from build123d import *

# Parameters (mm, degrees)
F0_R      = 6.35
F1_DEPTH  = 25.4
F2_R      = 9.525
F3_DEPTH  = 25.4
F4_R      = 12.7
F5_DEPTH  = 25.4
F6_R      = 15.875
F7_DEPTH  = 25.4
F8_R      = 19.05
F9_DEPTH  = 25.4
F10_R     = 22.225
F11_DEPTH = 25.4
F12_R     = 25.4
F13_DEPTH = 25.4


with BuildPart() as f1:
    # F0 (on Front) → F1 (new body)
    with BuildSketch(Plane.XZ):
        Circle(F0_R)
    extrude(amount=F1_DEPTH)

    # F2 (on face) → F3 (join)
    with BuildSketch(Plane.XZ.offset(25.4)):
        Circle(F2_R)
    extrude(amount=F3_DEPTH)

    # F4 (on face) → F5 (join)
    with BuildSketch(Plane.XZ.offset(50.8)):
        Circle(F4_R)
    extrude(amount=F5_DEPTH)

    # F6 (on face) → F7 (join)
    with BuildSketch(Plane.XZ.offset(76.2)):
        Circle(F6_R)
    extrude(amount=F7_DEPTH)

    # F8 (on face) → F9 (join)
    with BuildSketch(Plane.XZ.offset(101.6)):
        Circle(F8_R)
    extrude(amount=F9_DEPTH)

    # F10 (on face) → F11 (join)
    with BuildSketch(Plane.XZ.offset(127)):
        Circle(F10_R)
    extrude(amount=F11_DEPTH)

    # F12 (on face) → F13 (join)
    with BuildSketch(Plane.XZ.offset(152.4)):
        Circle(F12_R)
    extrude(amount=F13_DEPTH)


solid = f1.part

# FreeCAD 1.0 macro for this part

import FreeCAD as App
import Part
import Sketcher
from FreeCAD import Vector
Q = App.Units.Quantity

doc = App.newDocument("Part")
params = doc.addObject("Spreadsheet::Sheet", "Params")
for row, (alias, value) in enumerate([
    ("sketch1_diameter", "0.5 in"),
    ("pad1_length", "1 in"),
    ("sketch2_diameter", "0.75 in"),
    ("pad2_length", "1 in"),
    ("sketch3_diameter", "1 in"),
    ("pad3_length", "1 in"),
    ("sketch4_diameter", "1.25 in"),
    ("pad4_length", "1 in"),
    ("sketch5_diameter", "1.5 in"),
    ("pad5_length", "1 in"),
    ("sketch6_diameter", "1.75 in"),
    ("pad6_length", "1 in"),
    ("sketch7_diameter", "2 in"),
    ("pad7_length", "1 in"),
], start=1):
    params.set(f"A{row}", alias)
    params.set(f"B{row}", "=" + value)
    params.setAlias(f"B{row}", alias)

body = doc.addObject("PartDesign::Body", "Body")

# Sketch on XZ plane
sketch1 = body.newObject("Sketcher::SketchObject", "Sketch")
sketch1.AttachmentSupport = (doc.getObject("XZ_Plane"), [""])
sketch1.MapMode = "FlatFace"
sketch1.addGeometry(Part.Circle(Vector(0, 0, 0), Vector(0, 0, 1), 6), False)
sketch1.addConstraint([
    Sketcher.Constraint("Coincident", 0, 3, -1, 1),
    Sketcher.Constraint("Diameter", 0, Q("0.5 in")),
])
sketch1.setExpression("Constraints[1]", "Params.sketch1_diameter")
pad1 = body.newObject("PartDesign::Pad", "Pad")
pad1.Profile = sketch1
pad1.setExpression("Length", "Params.pad1_length")

# Sketch on XZ plane
sketch2 = body.newObject("Sketcher::SketchObject", "Sketch001")
sketch2.AttachmentSupport = (doc.getObject("XZ_Plane"), [""])
sketch2.MapMode = "FlatFace"
sketch2.AttachmentOffset = App.Placement(Vector(0, 0, 1 * 25.4), App.Rotation())
sketch2.addGeometry(Part.Circle(Vector(0, 0, 0), Vector(0, 0, 1), 10), False)
sketch2.addConstraint([
    Sketcher.Constraint("Coincident", 0, 3, -1, 1),
    Sketcher.Constraint("Diameter", 0, Q("0.75 in")),
])
sketch2.setExpression("Constraints[1]", "Params.sketch2_diameter")
pad2 = body.newObject("PartDesign::Pad", "Pad001")
pad2.Profile = sketch2
pad2.setExpression("Length", "Params.pad2_length")

# Sketch on XZ plane
sketch3 = body.newObject("Sketcher::SketchObject", "Sketch002")
sketch3.AttachmentSupport = (doc.getObject("XZ_Plane"), [""])
sketch3.MapMode = "FlatFace"
sketch3.AttachmentOffset = App.Placement(Vector(0, 0, 2 * 25.4), App.Rotation())
sketch3.addGeometry(Part.Circle(Vector(0, 0, 0), Vector(0, 0, 1), 13), False)
sketch3.addConstraint([
    Sketcher.Constraint("Coincident", 0, 3, -1, 1),
    Sketcher.Constraint("Diameter", 0, Q("1 in")),
])
sketch3.setExpression("Constraints[1]", "Params.sketch3_diameter")
pad3 = body.newObject("PartDesign::Pad", "Pad002")
pad3.Profile = sketch3
pad3.setExpression("Length", "Params.pad3_length")

# Sketch on XZ plane
sketch4 = body.newObject("Sketcher::SketchObject", "Sketch003")
sketch4.AttachmentSupport = (doc.getObject("XZ_Plane"), [""])
sketch4.MapMode = "FlatFace"
sketch4.AttachmentOffset = App.Placement(Vector(0, 0, 3 * 25.4), App.Rotation())
sketch4.addGeometry(Part.Circle(Vector(0, 0, 0), Vector(0, 0, 1), 16), False)
sketch4.addConstraint([
    Sketcher.Constraint("Coincident", 0, 3, -1, 1),
    Sketcher.Constraint("Diameter", 0, Q("1.25 in")),
])
sketch4.setExpression("Constraints[1]", "Params.sketch4_diameter")
pad4 = body.newObject("PartDesign::Pad", "Pad003")
pad4.Profile = sketch4
pad4.setExpression("Length", "Params.pad4_length")

# Sketch on XZ plane
sketch5 = body.newObject("Sketcher::SketchObject", "Sketch004")
sketch5.AttachmentSupport = (doc.getObject("XZ_Plane"), [""])
sketch5.MapMode = "FlatFace"
sketch5.AttachmentOffset = App.Placement(Vector(0, 0, 4 * 25.4), App.Rotation())
sketch5.addGeometry(Part.Circle(Vector(0, 0, 0), Vector(0, 0, 1), 19), False)
sketch5.addConstraint([
    Sketcher.Constraint("Coincident", 0, 3, -1, 1),
    Sketcher.Constraint("Diameter", 0, Q("1.5 in")),
])
sketch5.setExpression("Constraints[1]", "Params.sketch5_diameter")
pad5 = body.newObject("PartDesign::Pad", "Pad004")
pad5.Profile = sketch5
pad5.setExpression("Length", "Params.pad5_length")

# Sketch on XZ plane
sketch6 = body.newObject("Sketcher::SketchObject", "Sketch005")
sketch6.AttachmentSupport = (doc.getObject("XZ_Plane"), [""])
sketch6.MapMode = "FlatFace"
sketch6.AttachmentOffset = App.Placement(Vector(0, 0, 5 * 25.4), App.Rotation())
sketch6.addGeometry(Part.Circle(Vector(0, 0, 0), Vector(0, 0, 1), 22), False)
sketch6.addConstraint([
    Sketcher.Constraint("Coincident", 0, 3, -1, 1),
    Sketcher.Constraint("Diameter", 0, Q("1.75 in")),
])
sketch6.setExpression("Constraints[1]", "Params.sketch6_diameter")
pad6 = body.newObject("PartDesign::Pad", "Pad005")
pad6.Profile = sketch6
pad6.setExpression("Length", "Params.pad6_length")

# Sketch on XZ plane
sketch7 = body.newObject("Sketcher::SketchObject", "Sketch006")
sketch7.AttachmentSupport = (doc.getObject("XZ_Plane"), [""])
sketch7.MapMode = "FlatFace"
sketch7.AttachmentOffset = App.Placement(Vector(0, 0, 6 * 25.4), App.Rotation())
sketch7.addGeometry(Part.Circle(Vector(0, 0, 0), Vector(0, 0, 1), 25), False)
sketch7.addConstraint([
    Sketcher.Constraint("Coincident", 0, 3, -1, 1),
    Sketcher.Constraint("Diameter", 0, Q("2 in")),
])
sketch7.setExpression("Constraints[1]", "Params.sketch7_diameter")
pad7 = body.newObject("PartDesign::Pad", "Pad006")
pad7.Profile = sketch7
pad7.setExpression("Length", "Params.pad7_length")

doc.recompute()
